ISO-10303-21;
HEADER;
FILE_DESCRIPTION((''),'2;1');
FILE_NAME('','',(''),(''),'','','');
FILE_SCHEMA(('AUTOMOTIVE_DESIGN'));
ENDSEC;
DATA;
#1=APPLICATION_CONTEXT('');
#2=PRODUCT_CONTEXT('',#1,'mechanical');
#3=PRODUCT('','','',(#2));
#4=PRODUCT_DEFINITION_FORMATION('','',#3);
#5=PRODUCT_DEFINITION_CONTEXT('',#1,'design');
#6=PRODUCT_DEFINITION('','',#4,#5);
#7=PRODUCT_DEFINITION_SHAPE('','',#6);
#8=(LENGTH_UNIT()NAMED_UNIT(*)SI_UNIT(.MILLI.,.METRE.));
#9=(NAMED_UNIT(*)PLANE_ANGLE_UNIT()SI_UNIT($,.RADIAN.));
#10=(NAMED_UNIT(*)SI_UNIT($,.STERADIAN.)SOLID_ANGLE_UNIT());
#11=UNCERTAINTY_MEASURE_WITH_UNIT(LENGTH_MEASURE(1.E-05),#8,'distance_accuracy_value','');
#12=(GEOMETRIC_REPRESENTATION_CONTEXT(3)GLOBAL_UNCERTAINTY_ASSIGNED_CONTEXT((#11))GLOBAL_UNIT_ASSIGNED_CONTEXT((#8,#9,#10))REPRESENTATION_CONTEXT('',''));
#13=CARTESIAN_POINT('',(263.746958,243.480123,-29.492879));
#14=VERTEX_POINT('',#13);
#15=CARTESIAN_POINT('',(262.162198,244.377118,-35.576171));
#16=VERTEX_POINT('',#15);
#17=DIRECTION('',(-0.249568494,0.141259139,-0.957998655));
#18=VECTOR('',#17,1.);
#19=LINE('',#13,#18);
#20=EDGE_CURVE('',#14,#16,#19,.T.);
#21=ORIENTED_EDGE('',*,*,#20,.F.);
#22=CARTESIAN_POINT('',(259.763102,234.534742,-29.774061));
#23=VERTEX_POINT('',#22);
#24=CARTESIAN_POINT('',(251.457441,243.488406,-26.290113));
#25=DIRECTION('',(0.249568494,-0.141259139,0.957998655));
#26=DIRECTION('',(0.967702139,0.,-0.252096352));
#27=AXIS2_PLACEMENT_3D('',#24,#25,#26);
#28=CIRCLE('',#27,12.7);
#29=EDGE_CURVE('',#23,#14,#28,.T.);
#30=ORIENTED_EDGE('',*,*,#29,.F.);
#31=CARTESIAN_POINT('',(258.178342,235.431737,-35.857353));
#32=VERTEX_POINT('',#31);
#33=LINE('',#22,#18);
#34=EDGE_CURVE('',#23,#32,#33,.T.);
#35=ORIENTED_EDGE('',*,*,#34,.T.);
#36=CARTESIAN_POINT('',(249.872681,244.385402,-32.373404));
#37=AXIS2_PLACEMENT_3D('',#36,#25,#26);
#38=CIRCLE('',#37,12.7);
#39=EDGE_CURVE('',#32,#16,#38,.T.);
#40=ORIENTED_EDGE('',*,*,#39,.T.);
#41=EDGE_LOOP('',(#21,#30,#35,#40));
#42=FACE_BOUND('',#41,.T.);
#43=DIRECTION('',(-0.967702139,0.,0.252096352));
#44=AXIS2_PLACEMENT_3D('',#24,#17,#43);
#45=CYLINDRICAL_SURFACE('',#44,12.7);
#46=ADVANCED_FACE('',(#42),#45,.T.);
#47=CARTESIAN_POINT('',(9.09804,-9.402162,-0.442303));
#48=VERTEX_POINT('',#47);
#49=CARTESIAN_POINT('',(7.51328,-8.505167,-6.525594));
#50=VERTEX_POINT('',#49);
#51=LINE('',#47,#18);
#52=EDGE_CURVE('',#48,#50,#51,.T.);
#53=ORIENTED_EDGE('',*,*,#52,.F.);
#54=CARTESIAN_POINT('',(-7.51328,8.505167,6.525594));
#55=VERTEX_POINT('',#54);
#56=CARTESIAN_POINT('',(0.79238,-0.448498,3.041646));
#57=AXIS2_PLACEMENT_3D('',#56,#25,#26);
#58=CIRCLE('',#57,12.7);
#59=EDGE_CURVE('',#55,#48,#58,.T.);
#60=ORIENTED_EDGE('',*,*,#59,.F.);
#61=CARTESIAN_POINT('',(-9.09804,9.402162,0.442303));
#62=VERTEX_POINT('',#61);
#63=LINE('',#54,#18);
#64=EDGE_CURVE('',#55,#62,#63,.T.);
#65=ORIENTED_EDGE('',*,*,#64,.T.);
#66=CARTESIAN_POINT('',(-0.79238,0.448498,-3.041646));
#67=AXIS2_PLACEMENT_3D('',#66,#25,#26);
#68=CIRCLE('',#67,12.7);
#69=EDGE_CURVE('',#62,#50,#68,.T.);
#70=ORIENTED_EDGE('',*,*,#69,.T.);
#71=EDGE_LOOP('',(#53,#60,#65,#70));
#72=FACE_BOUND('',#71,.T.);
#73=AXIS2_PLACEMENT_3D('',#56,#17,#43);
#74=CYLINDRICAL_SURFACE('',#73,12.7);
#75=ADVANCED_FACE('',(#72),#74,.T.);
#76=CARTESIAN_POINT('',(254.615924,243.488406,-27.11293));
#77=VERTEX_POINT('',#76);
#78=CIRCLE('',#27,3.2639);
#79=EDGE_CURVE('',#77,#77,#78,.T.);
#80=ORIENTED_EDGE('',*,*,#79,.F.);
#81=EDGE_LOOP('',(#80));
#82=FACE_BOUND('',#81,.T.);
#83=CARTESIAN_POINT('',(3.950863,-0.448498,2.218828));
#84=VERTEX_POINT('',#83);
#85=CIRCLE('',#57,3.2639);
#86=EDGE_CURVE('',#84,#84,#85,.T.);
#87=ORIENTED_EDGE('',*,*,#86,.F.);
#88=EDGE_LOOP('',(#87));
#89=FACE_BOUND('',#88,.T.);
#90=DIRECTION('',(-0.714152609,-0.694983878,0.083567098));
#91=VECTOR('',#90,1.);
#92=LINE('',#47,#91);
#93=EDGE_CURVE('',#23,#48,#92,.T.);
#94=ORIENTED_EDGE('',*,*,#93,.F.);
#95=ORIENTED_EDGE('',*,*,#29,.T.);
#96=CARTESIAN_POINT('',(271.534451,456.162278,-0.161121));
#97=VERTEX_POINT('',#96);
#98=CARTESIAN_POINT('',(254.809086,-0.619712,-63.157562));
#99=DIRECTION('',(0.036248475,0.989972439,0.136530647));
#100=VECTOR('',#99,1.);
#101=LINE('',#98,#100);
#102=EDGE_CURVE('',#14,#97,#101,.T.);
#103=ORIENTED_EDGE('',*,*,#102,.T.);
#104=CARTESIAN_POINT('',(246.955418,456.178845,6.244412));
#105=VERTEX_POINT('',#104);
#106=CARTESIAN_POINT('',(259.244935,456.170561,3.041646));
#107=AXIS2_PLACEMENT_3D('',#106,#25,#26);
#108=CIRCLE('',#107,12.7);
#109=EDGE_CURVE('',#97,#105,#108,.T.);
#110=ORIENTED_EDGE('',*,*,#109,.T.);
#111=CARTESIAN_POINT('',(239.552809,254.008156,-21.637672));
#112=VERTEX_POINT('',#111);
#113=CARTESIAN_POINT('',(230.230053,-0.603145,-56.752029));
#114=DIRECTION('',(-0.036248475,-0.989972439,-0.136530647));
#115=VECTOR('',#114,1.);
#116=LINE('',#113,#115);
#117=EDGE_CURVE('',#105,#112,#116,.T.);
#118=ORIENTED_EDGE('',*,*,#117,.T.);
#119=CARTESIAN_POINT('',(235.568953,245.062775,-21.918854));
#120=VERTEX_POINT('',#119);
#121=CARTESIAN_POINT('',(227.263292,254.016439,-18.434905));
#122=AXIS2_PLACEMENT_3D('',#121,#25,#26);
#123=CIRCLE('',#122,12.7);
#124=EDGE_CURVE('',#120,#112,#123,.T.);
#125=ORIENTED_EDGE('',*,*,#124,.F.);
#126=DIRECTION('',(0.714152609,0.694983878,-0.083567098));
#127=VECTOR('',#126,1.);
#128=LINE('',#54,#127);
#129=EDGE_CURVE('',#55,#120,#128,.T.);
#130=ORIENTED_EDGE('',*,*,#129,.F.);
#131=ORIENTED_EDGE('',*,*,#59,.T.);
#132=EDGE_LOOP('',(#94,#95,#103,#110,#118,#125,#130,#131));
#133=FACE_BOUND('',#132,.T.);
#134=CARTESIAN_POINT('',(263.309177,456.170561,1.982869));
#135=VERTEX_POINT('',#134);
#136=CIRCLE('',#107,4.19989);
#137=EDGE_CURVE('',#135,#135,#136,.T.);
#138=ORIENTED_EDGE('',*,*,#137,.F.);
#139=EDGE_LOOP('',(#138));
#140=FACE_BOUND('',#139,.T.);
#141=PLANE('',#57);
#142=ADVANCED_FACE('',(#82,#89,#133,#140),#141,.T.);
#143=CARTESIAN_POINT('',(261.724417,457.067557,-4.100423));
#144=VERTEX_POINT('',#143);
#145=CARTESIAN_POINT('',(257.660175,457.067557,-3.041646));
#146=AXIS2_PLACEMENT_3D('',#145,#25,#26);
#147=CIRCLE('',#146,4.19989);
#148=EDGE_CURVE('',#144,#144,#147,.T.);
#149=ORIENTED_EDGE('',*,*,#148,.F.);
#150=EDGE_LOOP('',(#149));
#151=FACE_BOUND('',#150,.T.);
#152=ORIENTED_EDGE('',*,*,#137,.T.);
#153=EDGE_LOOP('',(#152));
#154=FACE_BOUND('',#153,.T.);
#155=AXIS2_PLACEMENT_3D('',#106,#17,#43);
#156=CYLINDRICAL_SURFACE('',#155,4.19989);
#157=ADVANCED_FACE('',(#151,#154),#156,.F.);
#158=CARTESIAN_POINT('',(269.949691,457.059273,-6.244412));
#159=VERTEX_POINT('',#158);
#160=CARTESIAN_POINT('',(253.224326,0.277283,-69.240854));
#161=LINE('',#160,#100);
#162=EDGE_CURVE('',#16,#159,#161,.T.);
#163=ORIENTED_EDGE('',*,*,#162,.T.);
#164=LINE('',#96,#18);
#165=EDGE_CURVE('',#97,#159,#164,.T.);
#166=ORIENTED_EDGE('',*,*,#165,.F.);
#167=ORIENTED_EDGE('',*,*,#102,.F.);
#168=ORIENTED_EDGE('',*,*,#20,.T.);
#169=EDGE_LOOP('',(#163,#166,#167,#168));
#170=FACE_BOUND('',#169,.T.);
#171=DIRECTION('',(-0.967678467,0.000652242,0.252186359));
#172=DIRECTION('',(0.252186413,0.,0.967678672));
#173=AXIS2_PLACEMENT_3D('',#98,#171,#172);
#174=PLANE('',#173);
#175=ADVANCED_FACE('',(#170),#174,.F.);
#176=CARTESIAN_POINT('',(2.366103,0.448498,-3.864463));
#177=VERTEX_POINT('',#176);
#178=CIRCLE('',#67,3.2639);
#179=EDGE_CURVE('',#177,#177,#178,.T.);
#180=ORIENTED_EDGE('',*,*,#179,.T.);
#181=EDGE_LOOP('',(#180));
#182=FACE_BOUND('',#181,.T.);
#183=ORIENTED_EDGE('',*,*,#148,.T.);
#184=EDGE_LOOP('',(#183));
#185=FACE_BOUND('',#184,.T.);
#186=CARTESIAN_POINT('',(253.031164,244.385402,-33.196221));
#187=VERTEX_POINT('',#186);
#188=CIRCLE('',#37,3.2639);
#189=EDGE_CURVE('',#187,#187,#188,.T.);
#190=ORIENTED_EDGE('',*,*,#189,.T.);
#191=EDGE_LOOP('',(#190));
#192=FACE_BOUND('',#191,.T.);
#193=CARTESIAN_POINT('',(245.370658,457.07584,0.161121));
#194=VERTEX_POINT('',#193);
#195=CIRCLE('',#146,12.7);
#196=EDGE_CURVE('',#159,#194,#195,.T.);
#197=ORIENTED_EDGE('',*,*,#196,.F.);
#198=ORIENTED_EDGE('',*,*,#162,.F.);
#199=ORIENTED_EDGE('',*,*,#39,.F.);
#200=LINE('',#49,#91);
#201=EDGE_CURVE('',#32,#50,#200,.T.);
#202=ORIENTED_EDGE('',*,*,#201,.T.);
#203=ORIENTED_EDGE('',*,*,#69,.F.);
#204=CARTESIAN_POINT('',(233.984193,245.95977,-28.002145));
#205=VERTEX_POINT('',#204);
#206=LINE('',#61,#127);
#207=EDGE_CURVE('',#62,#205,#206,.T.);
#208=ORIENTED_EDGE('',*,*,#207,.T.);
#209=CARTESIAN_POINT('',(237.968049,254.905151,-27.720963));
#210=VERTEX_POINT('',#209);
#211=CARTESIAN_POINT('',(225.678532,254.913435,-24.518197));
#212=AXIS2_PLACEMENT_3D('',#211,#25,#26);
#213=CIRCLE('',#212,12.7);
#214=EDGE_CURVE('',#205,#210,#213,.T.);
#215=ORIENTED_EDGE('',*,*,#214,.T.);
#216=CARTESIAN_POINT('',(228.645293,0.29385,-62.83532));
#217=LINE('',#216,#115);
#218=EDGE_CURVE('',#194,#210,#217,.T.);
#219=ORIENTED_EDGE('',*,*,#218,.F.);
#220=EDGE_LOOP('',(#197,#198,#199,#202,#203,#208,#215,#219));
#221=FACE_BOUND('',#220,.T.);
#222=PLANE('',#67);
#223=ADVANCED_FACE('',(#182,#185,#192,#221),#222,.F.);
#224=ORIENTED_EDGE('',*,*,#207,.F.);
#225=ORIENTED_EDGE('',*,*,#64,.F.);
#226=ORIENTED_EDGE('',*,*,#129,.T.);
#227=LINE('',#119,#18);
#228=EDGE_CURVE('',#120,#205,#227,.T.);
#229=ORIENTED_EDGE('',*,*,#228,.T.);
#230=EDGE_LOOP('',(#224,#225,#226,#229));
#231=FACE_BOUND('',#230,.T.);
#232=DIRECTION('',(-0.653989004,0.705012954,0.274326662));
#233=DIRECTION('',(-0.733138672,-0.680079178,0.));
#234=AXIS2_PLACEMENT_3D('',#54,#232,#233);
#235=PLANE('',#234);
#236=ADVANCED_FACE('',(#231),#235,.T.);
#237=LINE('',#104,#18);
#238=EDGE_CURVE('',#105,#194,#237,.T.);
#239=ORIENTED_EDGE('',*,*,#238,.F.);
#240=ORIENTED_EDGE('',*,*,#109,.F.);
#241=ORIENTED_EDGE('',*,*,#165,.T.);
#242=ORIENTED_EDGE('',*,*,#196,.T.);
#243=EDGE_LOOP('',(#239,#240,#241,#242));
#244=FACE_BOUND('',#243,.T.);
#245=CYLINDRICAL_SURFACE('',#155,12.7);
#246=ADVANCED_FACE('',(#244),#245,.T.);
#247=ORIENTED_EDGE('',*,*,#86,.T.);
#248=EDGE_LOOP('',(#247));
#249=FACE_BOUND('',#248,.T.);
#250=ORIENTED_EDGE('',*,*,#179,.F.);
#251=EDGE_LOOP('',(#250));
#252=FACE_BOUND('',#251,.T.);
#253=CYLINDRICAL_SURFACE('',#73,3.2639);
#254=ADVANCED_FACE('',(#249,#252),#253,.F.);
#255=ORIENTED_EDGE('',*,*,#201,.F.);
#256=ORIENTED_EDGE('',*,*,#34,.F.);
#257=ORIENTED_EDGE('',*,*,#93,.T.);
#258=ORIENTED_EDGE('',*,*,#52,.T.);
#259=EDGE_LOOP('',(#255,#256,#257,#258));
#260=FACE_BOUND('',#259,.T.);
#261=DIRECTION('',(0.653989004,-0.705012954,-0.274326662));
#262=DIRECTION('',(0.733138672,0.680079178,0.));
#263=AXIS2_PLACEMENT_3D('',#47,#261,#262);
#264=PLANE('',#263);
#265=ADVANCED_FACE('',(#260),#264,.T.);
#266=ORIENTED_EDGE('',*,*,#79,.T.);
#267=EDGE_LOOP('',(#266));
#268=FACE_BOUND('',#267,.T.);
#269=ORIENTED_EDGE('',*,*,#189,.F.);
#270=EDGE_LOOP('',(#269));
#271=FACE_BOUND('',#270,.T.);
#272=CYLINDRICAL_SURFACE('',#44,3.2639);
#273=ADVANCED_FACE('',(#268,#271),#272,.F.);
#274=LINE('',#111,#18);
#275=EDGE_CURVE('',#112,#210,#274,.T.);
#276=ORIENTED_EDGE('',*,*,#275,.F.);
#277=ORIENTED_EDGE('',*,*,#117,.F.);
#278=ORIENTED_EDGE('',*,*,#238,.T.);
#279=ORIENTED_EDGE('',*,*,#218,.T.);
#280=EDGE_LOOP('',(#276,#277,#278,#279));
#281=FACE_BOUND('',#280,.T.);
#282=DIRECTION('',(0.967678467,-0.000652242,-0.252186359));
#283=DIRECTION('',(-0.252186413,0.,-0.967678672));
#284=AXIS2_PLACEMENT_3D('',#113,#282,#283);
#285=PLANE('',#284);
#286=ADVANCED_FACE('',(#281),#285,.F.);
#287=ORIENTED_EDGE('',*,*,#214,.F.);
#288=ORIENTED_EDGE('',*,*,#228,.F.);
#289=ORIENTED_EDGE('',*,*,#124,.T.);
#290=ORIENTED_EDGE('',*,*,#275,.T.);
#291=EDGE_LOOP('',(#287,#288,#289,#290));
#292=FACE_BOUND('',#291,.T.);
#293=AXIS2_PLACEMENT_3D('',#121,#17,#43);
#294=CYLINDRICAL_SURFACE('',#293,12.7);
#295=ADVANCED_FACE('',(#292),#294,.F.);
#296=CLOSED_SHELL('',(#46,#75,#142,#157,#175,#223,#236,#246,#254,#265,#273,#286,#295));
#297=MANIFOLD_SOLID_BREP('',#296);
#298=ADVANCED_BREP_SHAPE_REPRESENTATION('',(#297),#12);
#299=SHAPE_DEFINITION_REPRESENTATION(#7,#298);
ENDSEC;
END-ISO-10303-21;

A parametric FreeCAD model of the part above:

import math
import FreeCAD as App
import Part
import Sketcher
from FreeCAD import Vector
Q = App.Units.Quantity

doc = App.newDocument("Part")
body = doc.addObject("PartDesign::Body", "Body")

sketch1 = body.newObject("Sketcher::SketchObject", "Sketch")
sketch1.Placement = App.Placement(Vector(0, 0, 0), App.Rotation(Vector(0.968357148, 0.036405814, -0.246898866), Vector(0, 0.989303024, 0.145875041), Vector(0.249568494, -0.141259139, 0.957998655), "ZXY"))
sketch1.addGeometry([
    Part.LineSegment(Vector(242.448329, 239.24393, 0), Vector(-8.577063, 9.366109, 0)),
    Part.ArcOfCircle(Part.Circle(Vector(0, 0, 0), Vector(0, 0, 1), 12.7), math.radians(132.482058), math.radians(312.482058)),
    Part.LineSegment(Vector(8.577063, -9.366109, 0), Vector(267.433066, 227.682637, 0)),
    Part.ArcOfCircle(Part.Circle(Vector(258.856003, 237.048745, 0), Vector(0, 0, 1), 12.7), math.radians(-47.517942), math.radians(-2.145252)),
    Part.LineSegment(Vector(271.547102, 236.573347, 0), Vector(279.589066, 451.259217, 0)),
    Part.ArcOfCircle(Part.Circle(Vector(266.897967, 451.734615, 0), Vector(0, 0, 1), 12.7), math.radians(-2.145252), math.radians(177.854748)),
    Part.LineSegment(Vector(254.206868, 452.210014, 0), Vector(246.562365, 248.13464, 0)),
    Part.ArcOfCircle(Part.Circle(Vector(233.871266, 248.610039, 0), Vector(0, 0, 1), 12.7), math.radians(-47.517942), math.radians(-2.145252)),
    Part.Circle(Vector(0, 0, 0), Vector(0, 0, 1), 3.2639),
    Part.Circle(Vector(258.856003, 237.048745, 0), Vector(0, 0, 1), 3.2639),
    Part.Circle(Vector(266.897967, 451.734615, 0), Vector(0, 0, 1), 4.19989),
], False)
sketch1.addConstraint([
    Sketcher.Constraint("Coincident", 0, 2, 1, 1),
    Sketcher.Constraint("Coincident", 1, 2, 2, 1),
    Sketcher.Constraint("Coincident", 2, 2, 3, 1),
    Sketcher.Constraint("Coincident", 3, 2, 4, 1),
    Sketcher.Constraint("Coincident", 4, 2, 5, 1),
    Sketcher.Constraint("Coincident", 5, 2, 6, 1),
    Sketcher.Constraint("Coincident", 6, 2, 7, 2),
    Sketcher.Constraint("Coincident", 7, 1, 0, 1),
    Sketcher.Constraint("Coincident", 1, 3, -1, 1),
    Sketcher.Constraint("Coincident", 8, 3, -1, 1),
    Sketcher.Constraint("Coincident", 9, 3, 3, 3),
    Sketcher.Constraint("Coincident", 10, 3, 5, 3),
    Sketcher.Constraint("Radius", 1, Q("0.5 in")),
    Sketcher.Constraint("Radius", 3, Q("0.5 in")),
    Sketcher.Constraint("Radius", 5, Q("0.5 in")),
    Sketcher.Constraint("Radius", 7, Q("0.5 in")),
    Sketcher.Constraint("Diameter", 8, Q("0.257 in")),
    Sketcher.Constraint("Diameter", 9, Q("0.257 in")),
    Sketcher.Constraint("Diameter", 10, Q("0.3307 in")),
    Sketcher.Constraint("DistanceX", 7, 3, 5, 3, Q("33.026701 mm")),
    Sketcher.Constraint("DistanceX", 7, 3, 2, 2, Q("33.5618 mm")),
    Sketcher.Constraint("DistanceX", 3, 3, 3, 2, Q("12.691099 mm")),
    Sketcher.Constraint("DistanceX", 5, 3, 4, 2, Q("12.691099 mm")),
    Sketcher.Constraint("DistanceX", 5, 2, 5, 3, Q("12.691099 mm")),
    Sketcher.Constraint("DistanceX", 7, 3, 6, 2, Q("12.691099 mm")),
    Sketcher.Constraint("Distance", 4, Q("214.83644 mm")),
    Sketcher.Constraint("DistanceY", -1, 1, 7, 3, Q("248.610039 mm")),
    Sketcher.Constraint("DistanceY", -1, 1, 0, 2, Q("9.366109 mm")),
    Sketcher.Constraint("DistanceY", 1, 2, -1, 1, Q("9.366109 mm")),
    Sketcher.Constraint("DistanceX", -1, 1, 5, 2, Q("254.206868 mm")),
    Sketcher.Constraint("DistanceX", -1, 1, 7, 1, Q("242.448329 mm")),
    Sketcher.Constraint("DistanceY", 3, 3, 5, 3, Q("214.68587 mm")),
    Sketcher.Constraint("Distance", 2, Q("350.996493 mm")),
])
pad1 = body.newObject("PartDesign::Pad", "Pad")
pad1.Profile = sketch1
pad1.Length = Q("0.25 in")
pad1.Midplane = True

doc.recompute()
